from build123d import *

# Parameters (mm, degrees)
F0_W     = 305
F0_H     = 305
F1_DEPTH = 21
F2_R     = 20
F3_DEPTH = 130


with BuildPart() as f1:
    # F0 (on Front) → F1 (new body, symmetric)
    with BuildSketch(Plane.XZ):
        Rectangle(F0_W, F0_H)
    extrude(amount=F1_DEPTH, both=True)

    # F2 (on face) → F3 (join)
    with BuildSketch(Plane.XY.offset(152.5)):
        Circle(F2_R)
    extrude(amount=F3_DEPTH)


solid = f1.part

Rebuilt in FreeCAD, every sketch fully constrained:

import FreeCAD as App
import Part
import Sketcher
from FreeCAD import Vector
Q = App.Units.Quantity


def add_polygon(sketch, points):
    """Adds a closed chain of lines whose ends are joined by coincident constraints."""
    first, n = sketch.GeometryCount, len(points)
    for a, b in zip(points, points[1:] + points[:1]):
        sketch.addGeometry(Part.LineSegment(App.Vector(*a, 0), App.Vector(*b, 0)), False)
    for i in range(n):
        sketch.addConstraint(Sketcher.Constraint("Coincident", first + i, 2, first + (i + 1) % n, 1))

doc = App.newDocument("Part")
params = doc.addObject("Spreadsheet::Sheet", "Params")
for row, (alias, value) in enumerate([
    ("sketch1_width", "305 mm"),
    ("pad1_length", "42 mm"),
    ("sketch2_diameter", "40 mm"),
    ("pad2_length", "130 mm"),
], start=1):
    params.set(f"A{row}", alias)
    params.set(f"B{row}", "=" + value)
    params.setAlias(f"B{row}", alias)

body = doc.addObject("PartDesign::Body", "Body")

# Sketch on XZ plane
sketch1 = doc.addObject("Sketcher::SketchObject", "Sketch")
body.addObject(sketch1)
sketch1.AttachmentSupport = (doc.XZ_Plane, [""])
sketch1.MapMode = "FlatFace"
add_polygon(sketch1, [(-152, 152), (-152, -152), (152, -152), (152, 152)])  # lines 0-3
sketch1.addConstraint([
    Sketcher.Constraint("Vertical", 0),
    Sketcher.Constraint("Horizontal", 1),
    Sketcher.Constraint("Vertical", 2),
    Sketcher.Constraint("Horizontal", 3),
    Sketcher.Constraint("Symmetric", 0, 2, 2, 2, -1, 1),
    Sketcher.Constraint("Equal", 3, 0),
    Sketcher.Constraint("DistanceX", 1, 1, 1, 2, Q("305 mm")),
])
sketch1.setExpression("Constraints[10]", "Params.sketch1_width")
pad1 = doc.addObject("PartDesign::Pad", "Pad")
body.addObject(pad1)
pad1.Profile = sketch1
pad1.setExpression("Length", "Params.pad1_length")
pad1.Midplane = True

# Sketch on XY plane
sketch2 = doc.addObject("Sketcher::SketchObject", "Sketch001")
body.addObject(sketch2)
sketch2.AttachmentSupport = (doc.XY_Plane, [""])
sketch2.MapMode = "FlatFace"
sketch2.AttachmentOffset = App.Placement(Vector(0, 0, 152.5), App.Rotation())
sketch2.addGeometry(Part.Circle(Vector(0, 0, 0), Vector(0, 0, 1), 20), False)
sketch2.addConstraint([
    Sketcher.Constraint("Coincident", 0, 3, -1, 1),
    Sketcher.Constraint("Diameter", 0, Q("40 mm")),
])
sketch2.setExpression("Constraints[1]", "Params.sketch2_diameter")
pad2 = doc.addObject("PartDesign::Pad", "Pad001")
body.addObject(pad2)
pad2.Profile = sketch2
pad2.setExpression("Length", "Params.pad2_length")

doc.recompute()
